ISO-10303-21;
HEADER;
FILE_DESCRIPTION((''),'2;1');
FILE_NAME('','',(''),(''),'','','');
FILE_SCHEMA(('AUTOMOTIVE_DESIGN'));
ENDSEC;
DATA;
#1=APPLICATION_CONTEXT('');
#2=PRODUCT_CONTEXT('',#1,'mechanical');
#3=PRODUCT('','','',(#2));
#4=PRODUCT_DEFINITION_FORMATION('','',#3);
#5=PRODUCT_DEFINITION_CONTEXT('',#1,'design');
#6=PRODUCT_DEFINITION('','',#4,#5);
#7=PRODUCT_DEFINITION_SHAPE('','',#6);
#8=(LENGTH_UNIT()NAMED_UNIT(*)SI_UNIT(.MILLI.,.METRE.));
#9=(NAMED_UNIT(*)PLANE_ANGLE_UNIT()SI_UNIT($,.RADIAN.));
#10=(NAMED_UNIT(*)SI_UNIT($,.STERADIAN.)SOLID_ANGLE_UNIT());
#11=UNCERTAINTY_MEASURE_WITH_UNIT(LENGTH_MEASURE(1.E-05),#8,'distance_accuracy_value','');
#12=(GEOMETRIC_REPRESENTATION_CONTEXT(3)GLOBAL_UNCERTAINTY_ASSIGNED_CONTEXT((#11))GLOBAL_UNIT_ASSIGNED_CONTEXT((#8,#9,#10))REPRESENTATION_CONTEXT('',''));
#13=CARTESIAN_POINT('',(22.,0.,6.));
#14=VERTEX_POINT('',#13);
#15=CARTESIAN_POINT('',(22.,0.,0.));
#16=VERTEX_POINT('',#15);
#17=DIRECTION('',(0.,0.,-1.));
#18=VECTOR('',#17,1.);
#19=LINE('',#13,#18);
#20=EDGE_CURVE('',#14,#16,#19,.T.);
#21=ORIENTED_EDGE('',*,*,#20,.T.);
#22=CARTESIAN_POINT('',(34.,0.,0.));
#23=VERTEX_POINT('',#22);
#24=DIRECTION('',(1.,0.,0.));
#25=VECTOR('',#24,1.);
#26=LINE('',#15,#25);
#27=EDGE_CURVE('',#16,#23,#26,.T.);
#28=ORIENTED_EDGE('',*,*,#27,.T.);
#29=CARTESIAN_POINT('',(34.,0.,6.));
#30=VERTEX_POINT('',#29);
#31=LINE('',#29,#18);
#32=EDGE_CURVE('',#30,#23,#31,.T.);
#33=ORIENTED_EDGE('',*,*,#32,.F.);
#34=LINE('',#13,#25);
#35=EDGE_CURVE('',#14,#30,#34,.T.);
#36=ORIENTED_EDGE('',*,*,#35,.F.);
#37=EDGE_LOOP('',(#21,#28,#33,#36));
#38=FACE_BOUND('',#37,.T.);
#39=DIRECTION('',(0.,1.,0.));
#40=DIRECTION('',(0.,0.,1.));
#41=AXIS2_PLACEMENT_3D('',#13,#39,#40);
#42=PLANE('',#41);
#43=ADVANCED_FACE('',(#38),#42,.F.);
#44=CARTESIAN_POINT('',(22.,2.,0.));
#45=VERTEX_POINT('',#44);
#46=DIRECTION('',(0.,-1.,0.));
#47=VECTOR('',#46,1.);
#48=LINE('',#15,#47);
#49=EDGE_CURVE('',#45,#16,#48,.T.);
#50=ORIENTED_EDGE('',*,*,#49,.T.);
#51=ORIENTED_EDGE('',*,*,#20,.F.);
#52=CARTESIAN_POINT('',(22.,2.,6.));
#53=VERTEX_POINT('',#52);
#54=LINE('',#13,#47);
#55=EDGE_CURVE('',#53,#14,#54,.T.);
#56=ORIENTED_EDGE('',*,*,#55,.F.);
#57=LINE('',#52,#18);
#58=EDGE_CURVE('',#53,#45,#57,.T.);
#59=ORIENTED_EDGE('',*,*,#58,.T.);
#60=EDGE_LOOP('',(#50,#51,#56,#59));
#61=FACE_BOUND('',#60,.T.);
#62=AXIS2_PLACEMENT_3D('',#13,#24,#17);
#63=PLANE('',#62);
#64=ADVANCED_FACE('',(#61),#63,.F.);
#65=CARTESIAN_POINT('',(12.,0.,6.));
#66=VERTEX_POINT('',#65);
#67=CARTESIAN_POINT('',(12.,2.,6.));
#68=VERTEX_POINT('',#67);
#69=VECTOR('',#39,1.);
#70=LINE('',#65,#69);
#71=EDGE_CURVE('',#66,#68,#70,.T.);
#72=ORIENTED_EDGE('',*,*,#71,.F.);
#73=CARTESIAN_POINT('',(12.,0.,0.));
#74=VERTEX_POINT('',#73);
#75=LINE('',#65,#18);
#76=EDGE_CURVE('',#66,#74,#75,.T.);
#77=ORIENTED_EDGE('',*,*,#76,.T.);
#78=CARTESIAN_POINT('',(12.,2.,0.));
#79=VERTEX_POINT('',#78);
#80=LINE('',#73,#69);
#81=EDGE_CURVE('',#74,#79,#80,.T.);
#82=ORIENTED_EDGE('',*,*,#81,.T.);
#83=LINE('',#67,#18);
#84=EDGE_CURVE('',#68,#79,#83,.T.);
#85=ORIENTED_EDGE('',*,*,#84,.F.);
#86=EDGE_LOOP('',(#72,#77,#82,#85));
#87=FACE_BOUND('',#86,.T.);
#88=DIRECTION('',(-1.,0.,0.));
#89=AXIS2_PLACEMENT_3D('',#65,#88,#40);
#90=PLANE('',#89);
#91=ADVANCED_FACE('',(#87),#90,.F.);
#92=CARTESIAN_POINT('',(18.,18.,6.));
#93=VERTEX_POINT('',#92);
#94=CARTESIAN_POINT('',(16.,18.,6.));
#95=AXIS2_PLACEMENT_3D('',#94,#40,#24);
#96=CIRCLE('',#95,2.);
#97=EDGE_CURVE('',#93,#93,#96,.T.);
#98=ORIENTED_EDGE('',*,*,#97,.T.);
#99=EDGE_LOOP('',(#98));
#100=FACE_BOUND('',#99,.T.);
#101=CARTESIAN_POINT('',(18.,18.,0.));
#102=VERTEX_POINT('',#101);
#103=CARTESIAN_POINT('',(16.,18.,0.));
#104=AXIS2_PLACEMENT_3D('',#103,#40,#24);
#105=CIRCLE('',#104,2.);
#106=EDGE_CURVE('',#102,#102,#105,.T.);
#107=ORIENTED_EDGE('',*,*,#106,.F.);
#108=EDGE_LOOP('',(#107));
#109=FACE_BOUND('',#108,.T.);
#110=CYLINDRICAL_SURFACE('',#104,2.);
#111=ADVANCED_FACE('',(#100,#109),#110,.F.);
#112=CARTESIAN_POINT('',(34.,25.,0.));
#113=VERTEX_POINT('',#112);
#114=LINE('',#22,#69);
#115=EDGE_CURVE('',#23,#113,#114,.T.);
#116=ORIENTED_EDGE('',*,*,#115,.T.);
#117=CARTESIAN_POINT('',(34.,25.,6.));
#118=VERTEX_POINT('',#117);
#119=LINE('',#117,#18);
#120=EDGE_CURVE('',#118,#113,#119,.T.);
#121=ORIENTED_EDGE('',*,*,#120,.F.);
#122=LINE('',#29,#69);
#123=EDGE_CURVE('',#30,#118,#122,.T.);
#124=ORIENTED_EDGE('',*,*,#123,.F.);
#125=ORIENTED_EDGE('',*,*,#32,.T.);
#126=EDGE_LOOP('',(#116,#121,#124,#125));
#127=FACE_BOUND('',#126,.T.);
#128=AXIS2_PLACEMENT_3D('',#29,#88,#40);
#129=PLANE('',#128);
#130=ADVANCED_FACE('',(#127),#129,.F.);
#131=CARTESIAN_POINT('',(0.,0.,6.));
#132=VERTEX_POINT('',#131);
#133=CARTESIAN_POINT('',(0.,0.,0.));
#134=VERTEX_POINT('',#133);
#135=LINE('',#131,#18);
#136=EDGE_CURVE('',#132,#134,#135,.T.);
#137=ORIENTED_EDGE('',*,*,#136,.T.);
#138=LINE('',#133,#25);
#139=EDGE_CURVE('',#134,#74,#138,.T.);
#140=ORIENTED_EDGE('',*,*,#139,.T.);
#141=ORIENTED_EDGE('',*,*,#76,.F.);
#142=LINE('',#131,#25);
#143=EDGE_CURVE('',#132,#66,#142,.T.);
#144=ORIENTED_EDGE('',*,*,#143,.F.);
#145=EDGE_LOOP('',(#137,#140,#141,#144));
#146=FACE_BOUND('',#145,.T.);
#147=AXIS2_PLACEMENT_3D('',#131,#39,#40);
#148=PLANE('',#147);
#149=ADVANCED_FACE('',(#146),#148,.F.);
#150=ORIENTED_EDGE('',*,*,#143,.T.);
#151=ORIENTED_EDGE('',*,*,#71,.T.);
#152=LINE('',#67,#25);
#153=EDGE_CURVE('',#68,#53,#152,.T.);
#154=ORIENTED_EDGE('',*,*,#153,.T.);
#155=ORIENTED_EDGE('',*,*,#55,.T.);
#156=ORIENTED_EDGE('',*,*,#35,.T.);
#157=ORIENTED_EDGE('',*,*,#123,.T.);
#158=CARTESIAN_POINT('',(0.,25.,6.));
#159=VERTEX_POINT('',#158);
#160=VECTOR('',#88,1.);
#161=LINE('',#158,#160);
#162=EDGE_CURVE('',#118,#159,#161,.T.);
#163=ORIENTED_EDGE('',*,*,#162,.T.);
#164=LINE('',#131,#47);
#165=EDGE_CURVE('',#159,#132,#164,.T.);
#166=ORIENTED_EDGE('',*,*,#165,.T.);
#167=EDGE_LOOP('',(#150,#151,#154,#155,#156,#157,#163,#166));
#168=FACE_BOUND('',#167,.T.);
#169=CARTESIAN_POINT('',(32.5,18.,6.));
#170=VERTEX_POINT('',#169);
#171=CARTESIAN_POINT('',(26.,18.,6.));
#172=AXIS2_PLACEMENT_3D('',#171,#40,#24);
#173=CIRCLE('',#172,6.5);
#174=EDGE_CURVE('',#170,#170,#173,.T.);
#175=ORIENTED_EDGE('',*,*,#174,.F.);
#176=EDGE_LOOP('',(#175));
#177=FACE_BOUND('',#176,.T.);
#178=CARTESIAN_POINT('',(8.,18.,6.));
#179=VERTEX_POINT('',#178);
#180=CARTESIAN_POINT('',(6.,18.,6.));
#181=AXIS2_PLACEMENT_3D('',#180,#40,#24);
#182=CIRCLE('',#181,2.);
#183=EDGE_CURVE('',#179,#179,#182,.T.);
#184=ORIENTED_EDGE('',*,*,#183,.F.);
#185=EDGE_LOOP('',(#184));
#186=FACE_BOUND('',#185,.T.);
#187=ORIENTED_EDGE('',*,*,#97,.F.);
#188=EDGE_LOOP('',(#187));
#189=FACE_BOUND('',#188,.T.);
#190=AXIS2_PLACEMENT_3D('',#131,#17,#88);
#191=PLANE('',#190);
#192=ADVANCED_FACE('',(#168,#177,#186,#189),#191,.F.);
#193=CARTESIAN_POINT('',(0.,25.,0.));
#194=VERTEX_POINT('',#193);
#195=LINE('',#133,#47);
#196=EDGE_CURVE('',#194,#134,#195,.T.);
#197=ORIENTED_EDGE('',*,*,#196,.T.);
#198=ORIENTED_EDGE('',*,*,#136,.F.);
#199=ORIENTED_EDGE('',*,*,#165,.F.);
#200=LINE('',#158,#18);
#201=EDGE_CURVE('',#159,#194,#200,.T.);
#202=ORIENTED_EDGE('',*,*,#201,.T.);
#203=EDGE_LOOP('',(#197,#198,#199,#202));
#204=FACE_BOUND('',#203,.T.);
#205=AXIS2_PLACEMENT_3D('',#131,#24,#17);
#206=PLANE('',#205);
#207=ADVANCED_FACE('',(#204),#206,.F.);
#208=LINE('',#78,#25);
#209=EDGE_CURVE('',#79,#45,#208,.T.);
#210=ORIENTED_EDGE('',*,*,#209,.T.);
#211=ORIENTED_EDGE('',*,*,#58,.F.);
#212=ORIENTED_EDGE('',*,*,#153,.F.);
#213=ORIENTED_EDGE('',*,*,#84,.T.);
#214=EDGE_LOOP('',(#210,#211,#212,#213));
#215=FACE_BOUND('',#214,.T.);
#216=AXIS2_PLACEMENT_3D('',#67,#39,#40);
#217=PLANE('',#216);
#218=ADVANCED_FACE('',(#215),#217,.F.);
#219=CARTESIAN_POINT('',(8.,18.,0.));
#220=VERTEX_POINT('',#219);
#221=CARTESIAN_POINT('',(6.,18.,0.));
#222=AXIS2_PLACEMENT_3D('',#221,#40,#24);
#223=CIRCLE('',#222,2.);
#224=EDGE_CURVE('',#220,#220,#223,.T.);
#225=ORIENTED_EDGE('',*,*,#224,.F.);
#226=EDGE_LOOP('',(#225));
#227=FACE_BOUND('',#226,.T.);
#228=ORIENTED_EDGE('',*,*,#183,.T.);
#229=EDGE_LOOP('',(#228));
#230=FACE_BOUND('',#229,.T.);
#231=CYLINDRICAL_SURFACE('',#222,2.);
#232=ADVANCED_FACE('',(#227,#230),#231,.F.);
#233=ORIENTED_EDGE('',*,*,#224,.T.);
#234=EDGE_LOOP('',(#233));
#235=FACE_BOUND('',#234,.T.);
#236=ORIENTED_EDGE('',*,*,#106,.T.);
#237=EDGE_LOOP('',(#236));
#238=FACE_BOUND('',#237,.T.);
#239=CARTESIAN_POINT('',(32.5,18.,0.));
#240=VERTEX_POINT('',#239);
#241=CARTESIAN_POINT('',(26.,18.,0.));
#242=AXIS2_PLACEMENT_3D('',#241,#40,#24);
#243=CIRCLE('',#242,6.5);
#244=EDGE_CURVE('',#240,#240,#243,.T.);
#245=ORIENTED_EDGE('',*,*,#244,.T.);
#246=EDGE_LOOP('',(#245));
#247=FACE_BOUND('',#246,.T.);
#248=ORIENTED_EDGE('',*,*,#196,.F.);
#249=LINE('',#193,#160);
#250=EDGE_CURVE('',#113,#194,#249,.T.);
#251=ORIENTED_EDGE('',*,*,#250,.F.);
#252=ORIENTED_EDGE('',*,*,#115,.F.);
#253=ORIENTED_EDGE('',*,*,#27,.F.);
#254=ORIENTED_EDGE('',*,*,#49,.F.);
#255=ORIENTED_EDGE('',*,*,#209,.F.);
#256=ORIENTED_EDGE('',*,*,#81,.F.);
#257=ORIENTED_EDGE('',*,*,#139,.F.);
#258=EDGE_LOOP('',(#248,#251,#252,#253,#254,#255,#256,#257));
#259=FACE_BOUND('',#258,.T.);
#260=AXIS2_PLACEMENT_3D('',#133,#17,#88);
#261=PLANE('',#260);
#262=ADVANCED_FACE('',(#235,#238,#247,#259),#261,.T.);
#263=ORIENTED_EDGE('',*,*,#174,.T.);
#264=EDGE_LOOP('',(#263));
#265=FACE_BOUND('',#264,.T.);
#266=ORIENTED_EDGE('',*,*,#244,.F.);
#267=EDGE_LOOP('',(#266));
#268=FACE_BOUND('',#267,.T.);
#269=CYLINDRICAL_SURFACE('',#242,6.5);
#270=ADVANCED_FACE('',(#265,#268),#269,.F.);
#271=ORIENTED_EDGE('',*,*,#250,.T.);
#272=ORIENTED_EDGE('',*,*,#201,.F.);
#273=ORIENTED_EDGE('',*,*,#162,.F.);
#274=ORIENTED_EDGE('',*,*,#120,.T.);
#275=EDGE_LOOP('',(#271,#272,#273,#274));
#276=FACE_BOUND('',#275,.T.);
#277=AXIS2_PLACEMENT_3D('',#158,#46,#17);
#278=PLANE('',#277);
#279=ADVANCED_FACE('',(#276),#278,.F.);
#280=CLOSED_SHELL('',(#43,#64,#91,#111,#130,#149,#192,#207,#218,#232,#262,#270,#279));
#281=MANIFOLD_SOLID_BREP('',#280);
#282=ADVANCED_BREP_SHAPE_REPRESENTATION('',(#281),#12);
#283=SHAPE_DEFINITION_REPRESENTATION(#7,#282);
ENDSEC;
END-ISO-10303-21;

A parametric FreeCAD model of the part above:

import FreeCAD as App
import Part
import Sketcher
Q = App.Units.Quantity

doc = App.newDocument("Part")
body = doc.addObject("PartDesign::Body", "Body")

sketch1 = doc.addObject("Sketcher::SketchObject", "Sketch")
body.addObject(sketch1)
sketch1.AttachmentSupport = (doc.XY_Plane, [""])
sketch1.MapMode = "FlatFace"
sketch1.addGeometry(Part.LineSegment(App.Vector(22, 0, 0), App.Vector(34, 0, 0)), False)
sketch1.addGeometry(Part.LineSegment(App.Vector(34, 0, 0), App.Vector(34, 25, 0)), False)
sketch1.addGeometry(Part.LineSegment(App.Vector(34, 25, 0), App.Vector(0, 25, 0)), False)
sketch1.addGeometry(Part.LineSegment(App.Vector(0, 25, 0), App.Vector(0, 0, 0)), False)
sketch1.addGeometry(Part.LineSegment(App.Vector(0, 0, 0), App.Vector(12, 0, 0)), False)
sketch1.addGeometry(Part.LineSegment(App.Vector(12, 0, 0), App.Vector(12, 2, 0)), False)
sketch1.addGeometry(Part.LineSegment(App.Vector(12, 2, 0), App.Vector(22, 2, 0)), False)
sketch1.addGeometry(Part.LineSegment(App.Vector(22, 2, 0), App.Vector(22, 0, 0)), False)
sketch1.addConstraint(Sketcher.Constraint("Coincident", 0, 2, 1, 1))
sketch1.addConstraint(Sketcher.Constraint("Coincident", 1, 2, 2, 1))
sketch1.addConstraint(Sketcher.Constraint("Coincident", 2, 2, 3, 1))
sketch1.addConstraint(Sketcher.Constraint("Coincident", 3, 2, 4, 1))
sketch1.addConstraint(Sketcher.Constraint("Coincident", 4, 2, 5, 1))
sketch1.addConstraint(Sketcher.Constraint("Coincident", 5, 2, 6, 1))
sketch1.addConstraint(Sketcher.Constraint("Coincident", 6, 2, 7, 1))
sketch1.addConstraint(Sketcher.Constraint("Coincident", 7, 2, 0, 1))
sketch1.addConstraint(Sketcher.Constraint("Horizontal", 0))
sketch1.addConstraint(Sketcher.Constraint("Vertical", 1))
sketch1.addConstraint(Sketcher.Constraint("Horizontal", 2))
sketch1.addConstraint(Sketcher.Constraint("Vertical", 3))
sketch1.addConstraint(Sketcher.Constraint("Horizontal", 4))
sketch1.addConstraint(Sketcher.Constraint("Vertical", 5))
sketch1.addConstraint(Sketcher.Constraint("Horizontal", 6))
sketch1.addConstraint(Sketcher.Constraint("Vertical", 7))
sketch1.addConstraint(Sketcher.Constraint("Coincident", 3, 2, -1, 1))
sketch1.addConstraint(Sketcher.Constraint("PointOnObject", 0, 2, -1))
sketch1.addConstraint(Sketcher.Constraint("Equal", 0, 4))
sketch1.addConstraint(Sketcher.Constraint("DistanceX", 0, 1, 0, 2, Q("12 mm")))
sketch1.addConstraint(Sketcher.Constraint("DistanceX", 2, 2, 2, 1, Q("34 mm")))
sketch1.addConstraint(Sketcher.Constraint("DistanceY", 1, 1, 1, 2, Q("25 mm")))
sketch1.addConstraint(Sketcher.Constraint("DistanceY", 5, 1, 5, 2, Q("2 mm")))
pad1 = doc.addObject("PartDesign::Pad", "Pad")
body.addObject(pad1)
pad1.Profile = sketch1
pad1.Length = 6

sketch2 = doc.addObject("Sketcher::SketchObject", "Sketch001")
body.addObject(sketch2)
sketch2.AttachmentSupport = (doc.XY_Plane, [""])
sketch2.MapMode = "FlatFace"
sketch2.AttachmentOffset = App.Placement(App.Vector(0, 0, 6), App.Rotation())
sketch2.addGeometry(Part.Circle(App.Vector(16, 18, 0), App.Vector(0, 0, 1), 2), False)
sketch2.addGeometry(Part.Circle(App.Vector(26, 18, 0), App.Vector(0, 0, 1), 6.5), False)
sketch2.addGeometry(Part.Circle(App.Vector(6, 18, 0), App.Vector(0, 0, 1), 2), False)
sketch2.addConstraint(Sketcher.Constraint("Equal", 0, 2))
sketch2.addConstraint(Sketcher.Constraint("Horizontal", 0, 3, 1, 3))
sketch2.addConstraint(Sketcher.Constraint("Horizontal", 1, 3, 2, 3))
sketch2.addConstraint(Sketcher.Constraint("Diameter", 0, Q("4 mm")))
sketch2.addConstraint(Sketcher.Constraint("Diameter", 1, Q("13 mm")))
sketch2.addConstraint(Sketcher.Constraint("DistanceX", -1, 1, 0, 3, Q("16 mm")))
sketch2.addConstraint(Sketcher.Constraint("DistanceY", -1, 1, 0, 3, Q("18 mm")))
sketch2.addConstraint(Sketcher.Constraint("DistanceX", -1, 1, 1, 3, Q("26 mm")))
sketch2.addConstraint(Sketcher.Constraint("DistanceX", -1, 1, 2, 3, Q("6 mm")))
pocket1 = doc.addObject("PartDesign::Pocket", "Pocket")
body.addObject(pocket1)
pocket1.Profile = sketch2
pocket1.Type = "ThroughAll"

doc.recompute()
